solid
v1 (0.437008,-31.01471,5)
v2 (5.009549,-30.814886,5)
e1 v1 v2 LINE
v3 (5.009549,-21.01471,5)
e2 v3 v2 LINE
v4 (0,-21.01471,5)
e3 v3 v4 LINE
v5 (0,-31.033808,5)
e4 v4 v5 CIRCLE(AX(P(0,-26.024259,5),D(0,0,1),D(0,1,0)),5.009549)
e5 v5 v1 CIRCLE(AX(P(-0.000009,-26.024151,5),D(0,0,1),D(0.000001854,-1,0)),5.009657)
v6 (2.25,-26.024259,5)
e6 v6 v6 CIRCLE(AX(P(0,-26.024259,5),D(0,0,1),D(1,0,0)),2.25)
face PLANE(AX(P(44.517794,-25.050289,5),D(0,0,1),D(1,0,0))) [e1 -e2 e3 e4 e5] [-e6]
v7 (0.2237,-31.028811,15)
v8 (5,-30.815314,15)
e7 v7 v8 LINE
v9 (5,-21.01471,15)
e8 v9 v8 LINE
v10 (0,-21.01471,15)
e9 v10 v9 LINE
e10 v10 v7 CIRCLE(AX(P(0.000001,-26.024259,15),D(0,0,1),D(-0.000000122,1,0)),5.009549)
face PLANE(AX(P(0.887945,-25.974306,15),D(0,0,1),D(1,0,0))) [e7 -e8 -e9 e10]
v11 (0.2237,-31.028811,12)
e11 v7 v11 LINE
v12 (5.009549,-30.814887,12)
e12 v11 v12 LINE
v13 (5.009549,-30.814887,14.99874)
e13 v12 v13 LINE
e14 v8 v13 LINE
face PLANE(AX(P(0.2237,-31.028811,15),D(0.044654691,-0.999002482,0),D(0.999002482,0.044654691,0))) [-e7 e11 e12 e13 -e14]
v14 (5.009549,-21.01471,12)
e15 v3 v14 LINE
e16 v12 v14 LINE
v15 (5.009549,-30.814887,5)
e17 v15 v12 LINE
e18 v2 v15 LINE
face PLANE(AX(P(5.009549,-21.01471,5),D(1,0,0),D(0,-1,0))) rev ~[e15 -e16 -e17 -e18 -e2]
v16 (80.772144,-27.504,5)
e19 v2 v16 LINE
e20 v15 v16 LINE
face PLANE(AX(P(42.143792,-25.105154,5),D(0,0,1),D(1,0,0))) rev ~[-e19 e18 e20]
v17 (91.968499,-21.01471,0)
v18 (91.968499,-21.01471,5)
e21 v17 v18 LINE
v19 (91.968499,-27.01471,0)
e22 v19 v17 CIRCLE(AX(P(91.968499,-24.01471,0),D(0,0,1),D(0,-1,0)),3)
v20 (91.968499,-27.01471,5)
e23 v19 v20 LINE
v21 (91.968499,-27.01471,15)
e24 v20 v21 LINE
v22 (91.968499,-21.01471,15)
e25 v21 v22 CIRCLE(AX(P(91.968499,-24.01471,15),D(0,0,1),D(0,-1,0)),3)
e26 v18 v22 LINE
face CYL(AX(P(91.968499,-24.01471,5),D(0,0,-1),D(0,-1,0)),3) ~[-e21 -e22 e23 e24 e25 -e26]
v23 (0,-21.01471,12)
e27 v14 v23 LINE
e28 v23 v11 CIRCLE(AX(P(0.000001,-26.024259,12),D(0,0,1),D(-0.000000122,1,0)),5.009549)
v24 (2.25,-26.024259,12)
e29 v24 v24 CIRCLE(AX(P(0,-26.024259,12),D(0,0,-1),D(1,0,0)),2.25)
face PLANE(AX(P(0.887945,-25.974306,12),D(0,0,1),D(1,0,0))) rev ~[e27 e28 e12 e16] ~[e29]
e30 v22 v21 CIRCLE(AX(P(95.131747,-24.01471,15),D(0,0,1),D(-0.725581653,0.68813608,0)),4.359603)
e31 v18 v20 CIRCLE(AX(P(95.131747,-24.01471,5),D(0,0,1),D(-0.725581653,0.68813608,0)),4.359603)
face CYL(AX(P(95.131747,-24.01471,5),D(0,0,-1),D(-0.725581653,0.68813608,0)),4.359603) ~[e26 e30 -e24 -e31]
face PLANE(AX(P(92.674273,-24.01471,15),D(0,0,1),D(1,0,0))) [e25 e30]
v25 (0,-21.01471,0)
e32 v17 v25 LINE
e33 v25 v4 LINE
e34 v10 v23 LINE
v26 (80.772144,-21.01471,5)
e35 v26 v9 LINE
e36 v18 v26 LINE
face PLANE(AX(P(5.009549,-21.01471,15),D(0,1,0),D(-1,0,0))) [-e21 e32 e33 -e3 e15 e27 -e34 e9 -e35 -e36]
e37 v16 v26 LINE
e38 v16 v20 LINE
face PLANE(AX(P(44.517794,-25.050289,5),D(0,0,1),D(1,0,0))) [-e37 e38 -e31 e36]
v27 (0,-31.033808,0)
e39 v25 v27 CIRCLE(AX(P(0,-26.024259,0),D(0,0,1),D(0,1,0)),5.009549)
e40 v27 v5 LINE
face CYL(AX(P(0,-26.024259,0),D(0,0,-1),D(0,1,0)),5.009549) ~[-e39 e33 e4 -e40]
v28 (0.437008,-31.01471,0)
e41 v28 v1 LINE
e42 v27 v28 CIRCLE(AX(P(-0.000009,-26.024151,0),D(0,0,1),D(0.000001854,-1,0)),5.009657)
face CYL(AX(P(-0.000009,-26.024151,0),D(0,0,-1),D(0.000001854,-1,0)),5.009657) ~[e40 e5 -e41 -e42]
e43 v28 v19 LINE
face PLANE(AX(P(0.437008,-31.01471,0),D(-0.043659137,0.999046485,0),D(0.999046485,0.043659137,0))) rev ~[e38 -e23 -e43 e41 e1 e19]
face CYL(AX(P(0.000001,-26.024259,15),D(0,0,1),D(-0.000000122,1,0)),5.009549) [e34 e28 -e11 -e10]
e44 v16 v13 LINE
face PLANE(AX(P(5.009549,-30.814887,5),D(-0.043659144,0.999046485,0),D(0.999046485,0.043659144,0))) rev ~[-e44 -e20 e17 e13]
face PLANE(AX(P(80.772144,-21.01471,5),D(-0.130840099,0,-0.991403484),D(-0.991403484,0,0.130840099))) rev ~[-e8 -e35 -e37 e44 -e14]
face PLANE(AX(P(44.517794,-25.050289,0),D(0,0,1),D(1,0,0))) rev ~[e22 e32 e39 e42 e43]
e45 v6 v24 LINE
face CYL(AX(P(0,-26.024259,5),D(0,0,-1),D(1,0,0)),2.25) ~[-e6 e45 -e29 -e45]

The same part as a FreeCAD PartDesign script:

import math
import FreeCAD as App
import Part
import Sketcher
from FreeCAD import Vector


def add_polygon(sketch, points):
    """Adds a closed chain of lines whose ends are joined by coincident constraints."""
    first, n = sketch.GeometryCount, len(points)
    for a, b in zip(points, points[1:] + points[:1]):
        sketch.addGeometry(Part.LineSegment(App.Vector(*a, 0), App.Vector(*b, 0)), False)
    for i in range(n):
        sketch.addConstraint(Sketcher.Constraint("Coincident", first + i, 2, first + (i + 1) % n, 1))

doc = App.newDocument("Part")
params = doc.addObject("Spreadsheet::Sheet", "Params")
for row, (alias, value) in enumerate([
    ("sketch1_radius", "3 mm"),
    ("pad1_length", "5 mm"),
    ("sketch2_radius", "3 mm"),
    ("pad2_length", "10 mm"),
    ("sketch3_diameter", "4.5 mm"),
    ("pad3_length", "10 mm"),
    ("pad4_length", "10 mm"),
    ("pad5_length", "3 mm"),
    ("sketch6_height", "10 mm"),
    ("pocket1_length", "25 mm"),
], start=1):
    params.set(f"A{row}", alias)
    params.set(f"B{row}", "=" + value)
    params.setAlias(f"B{row}", alias)

body = doc.addObject("PartDesign::Body", "Body")

# Sketch on XY plane
sketch1 = body.newObject("Sketcher::SketchObject", "Sketch")
sketch1.AttachmentSupport = (doc.getObject("XY_Plane"), [""])
sketch1.MapMode = "FlatFace"
sketch1.addGeometry([
    Part.LineSegment(Vector(91.968499, -21.01471, 0), Vector(0, -21.01471, 0)),  # 0
    Part.ArcOfCircle(Part.Circle(Vector(0, -26.024259, 0), Vector(0, 0, 1), 5.009549), math.radians(90), math.radians(270)),  # 1
    Part.ArcOfCircle(Part.Circle(Vector(-0.000009, -26.024151, 0), Vector(0, 0, 1), 5.009657), math.radians(-89.999894), math.radians(-84.995443)),  # 2
    Part.LineSegment(Vector(0.437008, -31.01471, 0), Vector(91.968499, -27.01471, 0)),  # 3
    Part.ArcOfCircle(Part.Circle(Vector(91.968499, -24.01471, 0), Vector(0, 0, 1), 3), math.radians(-90), math.radians(90)),  # 4
], False)
sketch1.addConstraint([
    Sketcher.Constraint("Tangent", 0, 2, 1, 1),
    Sketcher.Constraint("Tangent", 1, 2, 2, 1),
    Sketcher.Constraint("Coincident", 2, 2, 3, 1),
    Sketcher.Constraint("Coincident", 3, 2, 4, 1),
    Sketcher.Constraint("Tangent", 4, 2, 0, 1),
    Sketcher.Constraint("Horizontal", 0),
    Sketcher.Constraint("PointOnObject", 1, 3, -2),
    Sketcher.Constraint("PointOnObject", 1, 2, -2),
    Sketcher.Constraint("Vertical", 4, 3, 3, 2),
    Sketcher.Constraint("Radius", 4, 3.0),
    Sketcher.Constraint("DistanceY", 2, 2, 0, 2, 10.0),
    Sketcher.Constraint("Radius", 1, 5.009549),
    Sketcher.Constraint("DistanceX", 0, 2, 0, 1, 91.968499),
    Sketcher.Constraint("Radius", 2, 5.009657),
    Sketcher.Constraint("DistanceY", 1, 3, -1, 1, 26.024259),
])
sketch1.setExpression("Constraints[9]", "Params.sketch1_radius")
pad1 = body.newObject("PartDesign::Pad", "Pad")
pad1.Profile = sketch1
pad1.setExpression("Length", "Params.pad1_length")

# Sketch on XY plane
sketch2 = body.newObject("Sketcher::SketchObject", "Sketch001")
sketch2.AttachmentSupport = (doc.getObject("XY_Plane"), [""])
sketch2.MapMode = "FlatFace"
sketch2.AttachmentOffset = App.Placement(Vector(0, 0, 5), App.Rotation())
sketch2.addGeometry([
    Part.ArcOfCircle(Part.Circle(Vector(95.131747, -24.01471, 0), Vector(0, 0, 1), 4.359603), math.radians(136.517256), math.radians(223.482744)),
    Part.ArcOfCircle(Part.Circle(Vector(91.968499, -24.01471, 0), Vector(0, 0, 1), 3), math.radians(-90), math.radians(90)),
], False)
sketch2.addConstraint([
    Sketcher.Constraint("Coincident", 0, 1, 1, 2),
    Sketcher.Constraint("Coincident", 1, 1, 0, 2),
    Sketcher.Constraint("Horizontal", 0, 3, 1, 3),
    Sketcher.Constraint("Vertical", 1, 3, 0, 1),
    Sketcher.Constraint("Radius", 1, 3.0),
    Sketcher.Constraint("Radius", 0, 4.359603),
    Sketcher.Constraint("DistanceX", -1, 1, 1, 3, 91.968499),
    Sketcher.Constraint("DistanceY", 0, 3, -1, 1, 24.01471),
])
sketch2.setExpression("Constraints[4]", "Params.sketch2_radius")
pad2 = body.newObject("PartDesign::Pad", "Pad001")
pad2.Profile = sketch2
pad2.setExpression("Length", "Params.pad2_length")

# Sketch on XY plane
sketch3 = body.newObject("Sketcher::SketchObject", "Sketch002")
sketch3.AttachmentSupport = (doc.getObject("XY_Plane"), [""])
sketch3.MapMode = "FlatFace"
sketch3.AttachmentOffset = App.Placement(Vector(0, 0, 5), App.Rotation())
sketch3.addGeometry(Part.Circle(Vector(0, -26.024259, 0), Vector(0, 0, 1), 2.25), False)
sketch3.addConstraint([
    Sketcher.Constraint("PointOnObject", 0, 3, -2),
    Sketcher.Constraint("Diameter", 0, 4.5),
    Sketcher.Constraint("DistanceY", 0, 3, -1, 1, 26.024259),
])
sketch3.setExpression("Constraints[1]", "Params.sketch3_diameter")
pad3 = body.newObject("PartDesign::Pad", "Pad002")
pad3.Profile = sketch3
pad3.setExpression("Length", "Params.pad3_length")

# Sketch on XY plane
sketch4 = body.newObject("Sketcher::SketchObject", "Sketch003")
sketch4.AttachmentSupport = (doc.getObject("XY_Plane"), [""])
sketch4.MapMode = "FlatFace"
sketch4.AttachmentOffset = App.Placement(Vector(0, 0, 5), App.Rotation())
add_polygon(sketch4, [(5.009549, -21.01471), (5.009549, -30.814887), (80.772144, -27.504), (80.772144, -21.01471)])  # lines 0-3
sketch4.addConstraint([
    Sketcher.Constraint("Vertical", 0),
    Sketcher.Constraint("Vertical", 2),
    Sketcher.Constraint("Horizontal", 3),
    Sketcher.Constraint("DistanceY", 1, 2, -1, 1, 27.504),
    Sketcher.Constraint("DistanceY", 2, 1, 2, 2, 6.48929),
    Sketcher.Constraint("DistanceX", 3, 2, 3, 1, 75.762595),
    Sketcher.Constraint("DistanceY", 0, 2, 0, 1, 9.800177),
    Sketcher.Constraint("DistanceX", -1, 1, 0, 2, 5.009549),
])
pad4 = body.newObject("PartDesign::Pad", "Pad003")
pad4.Profile = sketch4
pad4.setExpression("Length", "Params.pad4_length")

# Sketch on XY plane
sketch5 = body.newObject("Sketcher::SketchObject", "Sketch004")
sketch5.AttachmentSupport = (doc.getObject("XY_Plane"), [""])
sketch5.MapMode = "FlatFace"
sketch5.AttachmentOffset = App.Placement(Vector(0, 0, 15), App.Rotation())
sketch5.addGeometry([
    Part.LineSegment(Vector(5.009549, -21.01471, 0), Vector(0, -21.01471, 0)),
    Part.ArcOfCircle(Part.Circle(Vector(0.000001, -26.024259, 0), Vector(0, 0, 1), 5.009549), math.radians(90.000007), math.radians(272.559371)),
    Part.LineSegment(Vector(0.2237, -31.028811, 0), Vector(5.009549, -30.814887, 0)),
    Part.LineSegment(Vector(5.009549, -30.814887, 0), Vector(5.009549, -21.01471, 0)),
], False)
sketch5.addConstraint([
    Sketcher.Constraint("Tangent", 0, 2, 1, 1),
    Sketcher.Constraint("Tangent", 1, 2, 2, 1),
    Sketcher.Constraint("Coincident", 2, 2, 3, 1),
    Sketcher.Constraint("Coincident", 3, 2, 0, 1),
    Sketcher.Constraint("Horizontal", 0),
    Sketcher.Constraint("Vertical", 3),
    Sketcher.Constraint("PointOnObject", 1, 3, -2),
    Sketcher.Constraint("Radius", 1, 5.009549),
    Sketcher.Constraint("DistanceX", 0, 2, 0, 1, 5.009549),
    Sketcher.Constraint("DistanceX", -1, 1, 1, 2, 0.2237),
    Sketcher.Constraint("DistanceY", 1, 3, -1, 1, 26.024259),
])
pad5 = body.newObject("PartDesign::Pad", "Pad004")
pad5.Profile = sketch5
pad5.setExpression("Length", "Params.pad5_length")
pad5.Reversed = True

# Sketch on XZ plane
sketch6 = body.newObject("Sketcher::SketchObject", "Sketch005")
sketch6.AttachmentSupport = (doc.getObject("XZ_Plane"), [""])
sketch6.MapMode = "FlatFace"
sketch6.AttachmentOffset = App.Placement(Vector(0, 0, 21.01471), App.Rotation())
add_polygon(sketch6, [(80.772144, 15), (80.772144, 5), (5, 15)])  # lines 0-2
sketch6.addConstraint([
    Sketcher.Constraint("Vertical", 0),
    Sketcher.Constraint("Horizontal", 2),
    Sketcher.Constraint("DistanceY", 0, 2, 0, 1, 10.0),
    Sketcher.Constraint("DistanceY", -1, 1, 0, 2, 5.0),
    Sketcher.Constraint("DistanceX", -1, 1, 1, 2, 5.0),
    Sketcher.Constraint("Distance", 1, 76.429169),
])
sketch6.setExpression("Constraints[5]", "Params.sketch6_height")
pocket1 = body.newObject("PartDesign::Pocket", "Pocket")
pocket1.Profile = sketch6
pocket1.setExpression("Length", "Params.pocket1_length")
pocket1.Reversed = True

doc.recompute()
